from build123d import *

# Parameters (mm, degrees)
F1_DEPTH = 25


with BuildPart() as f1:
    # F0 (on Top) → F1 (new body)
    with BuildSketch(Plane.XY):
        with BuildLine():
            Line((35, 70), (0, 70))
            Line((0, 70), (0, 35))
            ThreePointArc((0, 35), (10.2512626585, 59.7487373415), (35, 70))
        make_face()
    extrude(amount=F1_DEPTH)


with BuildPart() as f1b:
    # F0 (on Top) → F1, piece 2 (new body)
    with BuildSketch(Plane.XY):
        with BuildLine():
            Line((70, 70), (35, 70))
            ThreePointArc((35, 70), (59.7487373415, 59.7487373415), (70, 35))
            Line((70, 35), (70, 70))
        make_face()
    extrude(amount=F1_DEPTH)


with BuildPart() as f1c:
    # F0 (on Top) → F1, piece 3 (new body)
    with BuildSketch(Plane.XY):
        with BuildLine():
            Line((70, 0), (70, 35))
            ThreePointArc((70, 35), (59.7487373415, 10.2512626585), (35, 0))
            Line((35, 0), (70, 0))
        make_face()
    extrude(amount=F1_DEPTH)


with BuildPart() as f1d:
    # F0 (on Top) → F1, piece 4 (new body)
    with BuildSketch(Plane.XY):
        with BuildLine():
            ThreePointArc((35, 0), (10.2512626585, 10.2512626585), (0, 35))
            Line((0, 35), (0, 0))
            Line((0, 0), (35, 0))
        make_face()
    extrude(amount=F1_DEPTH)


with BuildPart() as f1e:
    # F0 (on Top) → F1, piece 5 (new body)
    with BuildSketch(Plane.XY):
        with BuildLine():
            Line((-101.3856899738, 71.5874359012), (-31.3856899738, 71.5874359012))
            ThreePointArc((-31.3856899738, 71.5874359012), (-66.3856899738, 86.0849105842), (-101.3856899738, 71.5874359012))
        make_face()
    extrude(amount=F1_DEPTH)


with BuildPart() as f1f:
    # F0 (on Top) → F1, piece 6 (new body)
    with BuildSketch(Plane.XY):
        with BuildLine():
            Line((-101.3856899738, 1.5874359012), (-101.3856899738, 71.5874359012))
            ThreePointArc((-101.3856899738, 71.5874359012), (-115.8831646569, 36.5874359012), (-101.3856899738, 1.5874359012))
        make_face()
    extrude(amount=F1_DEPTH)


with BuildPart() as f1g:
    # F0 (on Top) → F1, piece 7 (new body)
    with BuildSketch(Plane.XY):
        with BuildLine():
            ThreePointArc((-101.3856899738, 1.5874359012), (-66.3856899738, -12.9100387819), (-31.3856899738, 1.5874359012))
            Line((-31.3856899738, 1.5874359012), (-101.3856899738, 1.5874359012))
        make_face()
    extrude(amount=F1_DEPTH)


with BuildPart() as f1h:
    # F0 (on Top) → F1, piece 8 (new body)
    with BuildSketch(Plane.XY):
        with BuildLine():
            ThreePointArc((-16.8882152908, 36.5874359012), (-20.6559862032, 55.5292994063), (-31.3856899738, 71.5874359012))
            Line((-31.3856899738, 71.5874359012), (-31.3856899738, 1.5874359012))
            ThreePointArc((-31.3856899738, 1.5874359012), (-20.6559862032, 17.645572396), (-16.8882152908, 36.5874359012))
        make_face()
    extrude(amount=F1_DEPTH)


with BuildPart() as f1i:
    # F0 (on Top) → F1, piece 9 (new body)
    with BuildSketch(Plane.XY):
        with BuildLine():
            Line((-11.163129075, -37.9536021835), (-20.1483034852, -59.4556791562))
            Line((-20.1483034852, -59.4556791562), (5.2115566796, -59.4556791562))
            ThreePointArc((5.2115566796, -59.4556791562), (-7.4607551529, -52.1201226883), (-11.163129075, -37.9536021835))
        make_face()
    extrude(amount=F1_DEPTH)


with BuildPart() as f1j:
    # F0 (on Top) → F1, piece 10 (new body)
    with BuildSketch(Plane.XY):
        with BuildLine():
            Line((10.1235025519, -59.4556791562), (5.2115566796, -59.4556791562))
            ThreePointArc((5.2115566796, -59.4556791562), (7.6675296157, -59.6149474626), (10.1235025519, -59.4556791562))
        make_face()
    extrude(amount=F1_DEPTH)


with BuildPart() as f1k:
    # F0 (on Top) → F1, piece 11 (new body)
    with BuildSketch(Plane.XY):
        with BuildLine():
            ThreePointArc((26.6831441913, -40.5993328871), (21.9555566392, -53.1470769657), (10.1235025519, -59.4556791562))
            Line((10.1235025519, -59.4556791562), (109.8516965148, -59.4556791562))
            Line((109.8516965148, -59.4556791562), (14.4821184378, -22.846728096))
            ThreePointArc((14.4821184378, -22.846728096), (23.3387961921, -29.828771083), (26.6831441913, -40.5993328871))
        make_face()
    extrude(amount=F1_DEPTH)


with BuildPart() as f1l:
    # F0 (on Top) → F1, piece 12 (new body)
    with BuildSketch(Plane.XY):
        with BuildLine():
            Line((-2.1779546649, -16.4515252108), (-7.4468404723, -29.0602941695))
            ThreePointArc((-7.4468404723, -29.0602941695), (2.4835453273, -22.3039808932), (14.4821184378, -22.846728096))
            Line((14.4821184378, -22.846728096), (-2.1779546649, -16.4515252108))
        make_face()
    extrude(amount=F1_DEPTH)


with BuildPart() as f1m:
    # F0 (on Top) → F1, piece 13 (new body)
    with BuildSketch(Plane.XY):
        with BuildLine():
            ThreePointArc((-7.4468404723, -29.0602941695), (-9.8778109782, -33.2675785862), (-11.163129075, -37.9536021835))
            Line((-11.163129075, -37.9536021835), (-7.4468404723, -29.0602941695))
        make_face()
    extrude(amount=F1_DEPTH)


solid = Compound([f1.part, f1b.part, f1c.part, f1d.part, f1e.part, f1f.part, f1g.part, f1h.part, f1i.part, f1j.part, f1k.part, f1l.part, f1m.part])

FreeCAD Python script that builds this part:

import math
import FreeCAD as App
import Part
import Sketcher
from FreeCAD import Vector
Q = App.Units.Quantity

doc = App.newDocument("Part")
body = doc.addObject("PartDesign::Body", "Body")

# Sketch on XY plane
sketch1 = body.newObject("Sketcher::SketchObject", "Sketch")
sketch1.AttachmentSupport = (doc.getObject("XY_Plane"), [""])
sketch1.MapMode = "FlatFace"
sketch1.addGeometry(Part.LineSegment(Vector(35, 70, 0), Vector(0, 70, 0)), False)
sketch1.addGeometry(Part.LineSegment(Vector(0, 70, 0), Vector(0, 35, 0)), False)
sketch1.addGeometry(Part.ArcOfCircle(Part.Circle(Vector(35, 35, 0), Vector(0, 0, 1), 35), math.radians(90), math.radians(180)), False)
sketch1.addConstraint(Sketcher.Constraint("Coincident", 0, 2, 1, 1))
sketch1.addConstraint(Sketcher.Constraint("Tangent", 1, 2, 2, 2))
sketch1.addConstraint(Sketcher.Constraint("Tangent", 2, 1, 0, 1))
sketch1.addConstraint(Sketcher.Constraint("Horizontal", 0))
sketch1.addConstraint(Sketcher.Constraint("Vertical", 1))
sketch1.addConstraint(Sketcher.Constraint("PointOnObject", 0, 2, -2))
sketch1.addConstraint(Sketcher.Constraint("Radius", 2, 35.0))
sketch1.addConstraint(Sketcher.Constraint("DistanceY", -1, 1, 2, 3, 35.0))
pad1 = body.newObject("PartDesign::Pad", "Pad")
pad1.Profile = sketch1
pad1.Length = 25
body2 = doc.addObject("PartDesign::Body", "Body001")

# Sketch on XY plane
sketch2 = body2.newObject("Sketcher::SketchObject", "Sketch001")
sketch2.AttachmentSupport = (doc.getObject("XY_Plane001"), [""])
sketch2.MapMode = "FlatFace"
sketch2.addGeometry(Part.LineSegment(Vector(70, 70, 0), Vector(35, 70, 0)), False)
sketch2.addGeometry(Part.ArcOfCircle(Part.Circle(Vector(35, 35, 0), Vector(0, 0, 1), 35), math.radians(0), math.radians(90)), False)
sketch2.addGeometry(Part.LineSegment(Vector(70, 35, 0), Vector(70, 70, 0)), False)
sketch2.addConstraint(Sketcher.Constraint("Tangent", 0, 2, 1, 2))
sketch2.addConstraint(Sketcher.Constraint("Tangent", 1, 1, 2, 1))
sketch2.addConstraint(Sketcher.Constraint("Coincident", 2, 2, 0, 1))
sketch2.addConstraint(Sketcher.Constraint("Horizontal", 0))
sketch2.addConstraint(Sketcher.Constraint("Vertical", 2))
sketch2.addConstraint(Sketcher.Constraint("Radius", 1, 35.0))
sketch2.addConstraint(Sketcher.Constraint("DistanceX", -1, 1, 1, 3, 35.0))
sketch2.addConstraint(Sketcher.Constraint("DistanceY", -1, 1, 1, 3, 35.0))
pad2 = body2.newObject("PartDesign::Pad", "Pad001")
pad2.Profile = sketch2
pad2.Length = 25
body3 = doc.addObject("PartDesign::Body", "Body002")

# Sketch on XY plane
sketch3 = body3.newObject("Sketcher::SketchObject", "Sketch002")
sketch3.AttachmentSupport = (doc.getObject("XY_Plane002"), [""])
sketch3.MapMode = "FlatFace"
sketch3.addGeometry(Part.LineSegment(Vector(70, 0, 0), Vector(70, 35, 0)), False)
sketch3.addGeometry(Part.ArcOfCircle(Part.Circle(Vector(35, 35, 0), Vector(0, 0, 1), 35), math.radians(-90), math.radians(0)), False)
sketch3.addGeometry(Part.LineSegment(Vector(35, 0, 0), Vector(70, 0, 0)), False)
sketch3.addConstraint(Sketcher.Constraint("Tangent", 0, 2, 1, 2))
sketch3.addConstraint(Sketcher.Constraint("Tangent", 1, 1, 2, 1))
sketch3.addConstraint(Sketcher.Constraint("Coincident", 2, 2, 0, 1))
sketch3.addConstraint(Sketcher.Constraint("Vertical", 0))
sketch3.addConstraint(Sketcher.Constraint("Horizontal", 2))
sketch3.addConstraint(Sketcher.Constraint("PointOnObject", 1, 1, -1))
sketch3.addConstraint(Sketcher.Constraint("Radius", 1, 35.0))
sketch3.addConstraint(Sketcher.Constraint("DistanceX", -1, 1, 1, 3, 35.0))
pad3 = body3.newObject("PartDesign::Pad", "Pad002")
pad3.Profile = sketch3
pad3.Length = 25
body4 = doc.addObject("PartDesign::Body", "Body003")

# Sketch on XY plane
sketch4 = body4.newObject("Sketcher::SketchObject", "Sketch003")
sketch4.AttachmentSupport = (doc.getObject("XY_Plane003"), [""])
sketch4.MapMode = "FlatFace"
sketch4.addGeometry(Part.ArcOfCircle(Part.Circle(Vector(35, 35, 0), Vector(0, 0, 1), 35), math.radians(180), math.radians(270)), False)
sketch4.addGeometry(Part.LineSegment(Vector(0, 35, 0), Vector(0, 0, 0)), False)
sketch4.addGeometry(Part.LineSegment(Vector(0, 0, 0), Vector(35, 0, 0)), False)
sketch4.addConstraint(Sketcher.Constraint("Tangent", 0, 1, 1, 1))
sketch4.addConstraint(Sketcher.Constraint("Coincident", 1, 2, 2, 1))
sketch4.addConstraint(Sketcher.Constraint("Tangent", 2, 2, 0, 2))
sketch4.addConstraint(Sketcher.Constraint("Vertical", 1))
sketch4.addConstraint(Sketcher.Constraint("Horizontal", 2))
sketch4.addConstraint(Sketcher.Constraint("Coincident", 1, 2, -1, 1))
sketch4.addConstraint(Sketcher.Constraint("Radius", 0, 35.0))
pad4 = body4.newObject("PartDesign::Pad", "Pad003")
pad4.Profile = sketch4
pad4.Length = 25
body5 = doc.addObject("PartDesign::Body", "Body004")

# Sketch on XY plane
sketch5 = body5.newObject("Sketcher::SketchObject", "Sketch004")
sketch5.AttachmentSupport = (doc.getObject("XY_Plane004"), [""])
sketch5.MapMode = "FlatFace"
sketch5.addGeometry(Part.LineSegment(Vector(-101.38569, 71.587436, 0), Vector(-31.38569, 71.587436, 0)), False)
sketch5.addGeometry(Part.ArcOfCircle(Part.Circle(Vector(-66.38569, 36.587436, 0), Vector(0, 0, 1), 49.497475), math.radians(45), math.radians(135)), False)
sketch5.addConstraint(Sketcher.Constraint("Coincident", 0, 1, 1, 2))
sketch5.addConstraint(Sketcher.Constraint("Coincident", 1, 1, 0, 2))
sketch5.addConstraint(Sketcher.Constraint("Horizontal", 0))
sketch5.addConstraint(Sketcher.Constraint("DistanceX", 0, 1, 0, 2, 70.0))
sketch5.addConstraint(Sketcher.Constraint("DistanceY", 1, 3, 0, 1, 35.0))
sketch5.addConstraint(Sketcher.Constraint("DistanceX", 1, 3, -1, 1, 66.38569))
sketch5.addConstraint(Sketcher.Constraint("DistanceY", -1, 1, 1, 3, 36.587436))
pad5 = body5.newObject("PartDesign::Pad", "Pad004")
pad5.Profile = sketch5
pad5.Length = 25
body6 = doc.addObject("PartDesign::Body", "Body005")

# Sketch on XY plane
sketch6 = body6.newObject("Sketcher::SketchObject", "Sketch005")
sketch6.AttachmentSupport = (doc.getObject("XY_Plane005"), [""])
sketch6.MapMode = "FlatFace"
sketch6.addGeometry(Part.LineSegment(Vector(-101.38569, 1.587436, 0), Vector(-101.38569, 71.587436, 0)), False)
sketch6.addGeometry(Part.ArcOfCircle(Part.Circle(Vector(-66.38569, 36.587436, 0), Vector(0, 0, 1), 49.497475), math.radians(135), math.radians(225)), False)
sketch6.addConstraint(Sketcher.Constraint("Coincident", 0, 1, 1, 2))
sketch6.addConstraint(Sketcher.Constraint("Coincident", 1, 1, 0, 2))
sketch6.addConstraint(Sketcher.Constraint("Vertical", 0))
sketch6.addConstraint(Sketcher.Constraint("DistanceY", 0, 1, 0, 2, 70.0))
sketch6.addConstraint(Sketcher.Constraint("DistanceX", 0, 1, 1, 3, 35.0))
sketch6.addConstraint(Sketcher.Constraint("DistanceX", 1, 3, -1, 1, 66.38569))
sketch6.addConstraint(Sketcher.Constraint("DistanceY", -1, 1, 1, 3, 36.587436))
pad6 = body6.newObject("PartDesign::Pad", "Pad005")
pad6.Profile = sketch6
pad6.Length = 25
body7 = doc.addObject("PartDesign::Body", "Body006")

# Sketch on XY plane
sketch7 = body7.newObject("Sketcher::SketchObject", "Sketch006")
sketch7.AttachmentSupport = (doc.getObject("XY_Plane006"), [""])
sketch7.MapMode = "FlatFace"
sketch7.addGeometry(Part.ArcOfCircle(Part.Circle(Vector(-66.38569, 36.587436, 0), Vector(0, 0, 1), 49.497475), math.radians(-135), math.radians(-45)), False)
sketch7.addGeometry(Part.LineSegment(Vector(-31.38569, 1.587436, 0), Vector(-101.38569, 1.587436, 0)), False)
sketch7.addConstraint(Sketcher.Constraint("Coincident", 0, 1, 1, 2))
sketch7.addConstraint(Sketcher.Constraint("Coincident", 1, 1, 0, 2))
sketch7.addConstraint(Sketcher.Constraint("Horizontal", 1))
sketch7.addConstraint(Sketcher.Constraint("DistanceX", 1, 2, 1, 1, 70.0))
sketch7.addConstraint(Sketcher.Constraint("DistanceY", 0, 1, 0, 3, 35.0))
sketch7.addConstraint(Sketcher.Constraint("DistanceX", 0, 3, -1, 1, 66.38569))
sketch7.addConstraint(Sketcher.Constraint("DistanceY", -1, 1, 0, 3, 36.587436))
pad7 = body7.newObject("PartDesign::Pad", "Pad006")
pad7.Profile = sketch7
pad7.Length = 25
body8 = doc.addObject("PartDesign::Body", "Body007")

# Sketch on XY plane
sketch8 = body8.newObject("Sketcher::SketchObject", "Sketch007")
sketch8.AttachmentSupport = (doc.getObject("XY_Plane007"), [""])
sketch8.MapMode = "FlatFace"
sketch8.addGeometry(Part.ArcOfCircle(Part.Circle(Vector(-66.38569, 36.587436, 0), Vector(0, 0, 1), 49.497475), math.radians(0), math.radians(45)), False)
sketch8.addGeometry(Part.LineSegment(Vector(-31.38569, 71.587436, 0), Vector(-31.38569, 1.587436, 0)), False)
sketch8.addGeometry(Part.ArcOfCircle(Part.Circle(Vector(-66.38569, 36.587436, 0), Vector(0, 0, 1), 49.497475), math.radians(-45), math.radians(0)), False)
sketch8.addConstraint(Sketcher.Constraint("Coincident", 0, 2, 1, 1))
sketch8.addConstraint(Sketcher.Constraint("Coincident", 1, 2, 2, 1))
sketch8.addConstraint(Sketcher.Constraint("Tangent", 2, 2, 0, 1))
sketch8.addConstraint(Sketcher.Constraint("Vertical", 1))
sketch8.addConstraint(Sketcher.Constraint("Equal", 0, 2))
sketch8.addConstraint(Sketcher.Constraint("Horizontal", 0, 3, 2, 2))
sketch8.addConstraint(Sketcher.Constraint("DistanceY", 1, 2, 1, 1, 70.0))
sketch8.addConstraint(Sketcher.Constraint("DistanceX", 0, 3, 0, 2, 35.0))
sketch8.addConstraint(Sketcher.Constraint("DistanceX", 0, 3, -1, 1, 66.38569))
sketch8.addConstraint(Sketcher.Constraint("DistanceY", -1, 1, 0, 3, 36.587436))
pad8 = body8.newObject("PartDesign::Pad", "Pad007")
pad8.Profile = sketch8
pad8.Length = 25
body9 = doc.addObject("PartDesign::Body", "Body008")

# Sketch on XY plane
sketch9 = body9.newObject("Sketcher::SketchObject", "Sketch008")
sketch9.AttachmentSupport = (doc.getObject("XY_Plane008"), [""])
sketch9.MapMode = "FlatFace"
sketch9.addGeometry(Part.LineSegment(Vector(-11.163129, -37.953602, 0), Vector(-20.148303, -59.455679, 0)), False)
sketch9.addGeometry(Part.LineSegment(Vector(-20.148303, -59.455679, 0), Vector(5.211557, -59.455679, 0)), False)
sketch9.addGeometry(Part.ArcOfCircle(Part.Circle(Vector(7.66753, -40.599333, 0), Vector(0, 0, 1), 19.015615), math.radians(172.002225), math.radians(262.5792)), False)
sketch9.addConstraint(Sketcher.Constraint("Coincident", 0, 2, 1, 1))
sketch9.addConstraint(Sketcher.Constraint("Coincident", 1, 2, 2, 2))
sketch9.addConstraint(Sketcher.Constraint("Coincident", 2, 1, 0, 1))
sketch9.addConstraint(Sketcher.Constraint("Horizontal", 1))
sketch9.addConstraint(Sketcher.Constraint("Radius", 2, 19.015615))
sketch9.addConstraint(Sketcher.Constraint("DistanceX", 1, 1, 1, 2, 25.35986))
sketch9.addConstraint(Sketcher.Constraint("Distance", 0, 23.30392))
sketch9.addConstraint(Sketcher.Constraint("DistanceX", -1, 1, 2, 3, 7.66753))
sketch9.addConstraint(Sketcher.Constraint("DistanceY", 0, 2, -1, 1, 59.455679))
sketch9.addConstraint(Sketcher.Constraint("DistanceX", 2, 1, -1, 1, 11.163129))
pad9 = body9.newObject("PartDesign::Pad", "Pad008")
pad9.Profile = sketch9
pad9.Length = 25
body10 = doc.addObject("PartDesign::Body", "Body009")

# Sketch on XY plane
sketch10 = body10.newObject("Sketcher::SketchObject", "Sketch009")
sketch10.AttachmentSupport = (doc.getObject("XY_Plane009"), [""])
sketch10.MapMode = "FlatFace"
sketch10.addGeometry(Part.LineSegment(Vector(10.123503, -59.455679, 0), Vector(5.211557, -59.455679, 0)), False)
sketch10.addGeometry(Part.ArcOfCircle(Part.Circle(Vector(7.66753, -40.599333, 0), Vector(0, 0, 1), 19.015615), math.radians(-97.4208), math.radians(-82.5792)), False)
sketch10.addConstraint(Sketcher.Constraint("Coincident", 0, 1, 1, 2))
sketch10.addConstraint(Sketcher.Constraint("Coincident", 1, 1, 0, 2))
sketch10.addConstraint(Sketcher.Constraint("Horizontal", 0))
sketch10.addConstraint(Sketcher.Constraint("Radius", 1, 19.015615))
sketch10.addConstraint(Sketcher.Constraint("DistanceX", 0, 2, 0, 1, 4.911946))
sketch10.addConstraint(Sketcher.Constraint("DistanceX", -1, 1, 1, 3, 7.66753))
sketch10.addConstraint(Sketcher.Constraint("DistanceY", 0, 1, -1, 1, 59.455679))
pad10 = body10.newObject("PartDesign::Pad", "Pad009")
pad10.Profile = sketch10
pad10.Length = 25
body11 = doc.addObject("PartDesign::Body", "Body010")

# Sketch on XY plane
sketch11 = body11.newObject("Sketcher::SketchObject", "Sketch010")
sketch11.AttachmentSupport = (doc.getObject("XY_Plane010"), [""])
sketch11.MapMode = "FlatFace"
sketch11.addGeometry(Part.ArcOfCircle(Part.Circle(Vector(7.66753, -40.599333, 0), Vector(0, 0, 1), 19.015615), math.radians(-82.5792), math.radians(0)), False)
sketch11.addGeometry(Part.LineSegment(Vector(10.123503, -59.455679, 0), Vector(109.851697, -59.455679, 0)), False)
sketch11.addGeometry(Part.LineSegment(Vector(109.851697, -59.455679, 0), Vector(14.482118, -22.846728, 0)), False)
sketch11.addGeometry(Part.ArcOfCircle(Part.Circle(Vector(7.66753, -40.599333, 0), Vector(0, 0, 1), 19.015615), math.radians(0), math.radians(68.999993)), False)
sketch11.addConstraint(Sketcher.Constraint("Coincident", 0, 1, 1, 1))
sketch11.addConstraint(Sketcher.Constraint("Coincident", 1, 2, 2, 1))
sketch11.addConstraint(Sketcher.Constraint("Tangent", 2, 2, 3, 2))
sketch11.addConstraint(Sketcher.Constraint("Tangent", 3, 1, 0, 2))
sketch11.addConstraint(Sketcher.Constraint("Horizontal", 1))
sketch11.addConstraint(Sketcher.Constraint("Equal", 0, 3))
sketch11.addConstraint(Sketcher.Constraint("Horizontal", 0, 3, 3, 1))
sketch11.addConstraint(Sketcher.Constraint("Angle", 2, Q("159 deg")))
sketch11.addConstraint(Sketcher.Constraint("Radius", 0, 19.015615))
sketch11.addConstraint(Sketcher.Constraint("DistanceX", 1, 1, 1, 2, 99.728194))
sketch11.addConstraint(Sketcher.Constraint("DistanceX", -1, 1, 0, 3, 7.66753))
sketch11.addConstraint(Sketcher.Constraint("DistanceY", 0, 1, -1, 1, 59.455679))
pad11 = body11.newObject("PartDesign::Pad", "Pad010")
pad11.Profile = sketch11
pad11.Length = 25
body12 = doc.addObject("PartDesign::Body", "Body011")

# Sketch on XY plane
sketch12 = body12.newObject("Sketcher::SketchObject", "Sketch011")
sketch12.AttachmentSupport = (doc.getObject("XY_Plane011"), [""])
sketch12.MapMode = "FlatFace"
sketch12.addGeometry(Part.LineSegment(Vector(-2.177955, -16.451525, 0), Vector(-7.44684, -29.060294, 0)), False)
sketch12.addGeometry(Part.ArcOfCircle(Part.Circle(Vector(7.66753, -40.599333, 0), Vector(0, 0, 1), 19.015615), math.radians(68.999993), math.radians(142.640141)), False)
sketch12.addGeometry(Part.LineSegment(Vector(14.482118, -22.846728, 0), Vector(-2.177955, -16.451525, 0)), False)
sketch12.addConstraint(Sketcher.Constraint("Coincident", 0, 2, 1, 2))
sketch12.addConstraint(Sketcher.Constraint("Tangent", 1, 1, 2, 1))
sketch12.addConstraint(Sketcher.Constraint("Coincident", 2, 2, 0, 1))
sketch12.addConstraint(Sketcher.Constraint("Angle", 2, Q("159 deg")))
sketch12.addConstraint(Sketcher.Constraint("Radius", 1, 19.015615))
sketch12.addConstraint(Sketcher.Constraint("DistanceX", -1, 1, 1, 3, 7.66753))
sketch12.addConstraint(Sketcher.Constraint("DistanceX", 0, 2, -1, 1, 7.44684))
sketch12.addConstraint(Sketcher.Constraint("DistanceY", 1, 1, -1, 1, 22.846728))
sketch12.addConstraint(Sketcher.Constraint("DistanceY", 0, 2, 2, 2, 12.608769))
pad12 = body12.newObject("PartDesign::Pad", "Pad011")
pad12.Profile = sketch12
pad12.Length = 25
body13 = doc.addObject("PartDesign::Body", "Body012")

# Sketch on XY plane
sketch13 = body13.newObject("Sketcher::SketchObject", "Sketch012")
sketch13.AttachmentSupport = (doc.getObject("XY_Plane012"), [""])
sketch13.MapMode = "FlatFace"
sketch13.addGeometry(Part.ArcOfCircle(Part.Circle(Vector(7.66753, -40.599333, 0), Vector(0, 0, 1), 19.015615), math.radians(142.640141), math.radians(172.002225)), False)
sketch13.addGeometry(Part.LineSegment(Vector(-11.163129, -37.953602, 0), Vector(-7.44684, -29.060294, 0)), False)
sketch13.addConstraint(Sketcher.Constraint("Coincident", 0, 1, 1, 2))
sketch13.addConstraint(Sketcher.Constraint("Coincident", 1, 1, 0, 2))
sketch13.addConstraint(Sketcher.Constraint("Radius", 0, 19.015615))
sketch13.addConstraint(Sketcher.Constraint("DistanceX", -1, 1, 0, 3, 7.66753))
sketch13.addConstraint(Sketcher.Constraint("DistanceX", 0, 1, -1, 1, 7.44684))
sketch13.addConstraint(Sketcher.Constraint("DistanceX", 1, 1, -1, 1, 11.163129))
sketch13.addConstraint(Sketcher.Constraint("DistanceY", 0, 3, -1, 1, 40.599333))
pad13 = body13.newObject("PartDesign::Pad", "Pad012")
pad13.Profile = sketch13
pad13.Length = 25

doc.recompute()
